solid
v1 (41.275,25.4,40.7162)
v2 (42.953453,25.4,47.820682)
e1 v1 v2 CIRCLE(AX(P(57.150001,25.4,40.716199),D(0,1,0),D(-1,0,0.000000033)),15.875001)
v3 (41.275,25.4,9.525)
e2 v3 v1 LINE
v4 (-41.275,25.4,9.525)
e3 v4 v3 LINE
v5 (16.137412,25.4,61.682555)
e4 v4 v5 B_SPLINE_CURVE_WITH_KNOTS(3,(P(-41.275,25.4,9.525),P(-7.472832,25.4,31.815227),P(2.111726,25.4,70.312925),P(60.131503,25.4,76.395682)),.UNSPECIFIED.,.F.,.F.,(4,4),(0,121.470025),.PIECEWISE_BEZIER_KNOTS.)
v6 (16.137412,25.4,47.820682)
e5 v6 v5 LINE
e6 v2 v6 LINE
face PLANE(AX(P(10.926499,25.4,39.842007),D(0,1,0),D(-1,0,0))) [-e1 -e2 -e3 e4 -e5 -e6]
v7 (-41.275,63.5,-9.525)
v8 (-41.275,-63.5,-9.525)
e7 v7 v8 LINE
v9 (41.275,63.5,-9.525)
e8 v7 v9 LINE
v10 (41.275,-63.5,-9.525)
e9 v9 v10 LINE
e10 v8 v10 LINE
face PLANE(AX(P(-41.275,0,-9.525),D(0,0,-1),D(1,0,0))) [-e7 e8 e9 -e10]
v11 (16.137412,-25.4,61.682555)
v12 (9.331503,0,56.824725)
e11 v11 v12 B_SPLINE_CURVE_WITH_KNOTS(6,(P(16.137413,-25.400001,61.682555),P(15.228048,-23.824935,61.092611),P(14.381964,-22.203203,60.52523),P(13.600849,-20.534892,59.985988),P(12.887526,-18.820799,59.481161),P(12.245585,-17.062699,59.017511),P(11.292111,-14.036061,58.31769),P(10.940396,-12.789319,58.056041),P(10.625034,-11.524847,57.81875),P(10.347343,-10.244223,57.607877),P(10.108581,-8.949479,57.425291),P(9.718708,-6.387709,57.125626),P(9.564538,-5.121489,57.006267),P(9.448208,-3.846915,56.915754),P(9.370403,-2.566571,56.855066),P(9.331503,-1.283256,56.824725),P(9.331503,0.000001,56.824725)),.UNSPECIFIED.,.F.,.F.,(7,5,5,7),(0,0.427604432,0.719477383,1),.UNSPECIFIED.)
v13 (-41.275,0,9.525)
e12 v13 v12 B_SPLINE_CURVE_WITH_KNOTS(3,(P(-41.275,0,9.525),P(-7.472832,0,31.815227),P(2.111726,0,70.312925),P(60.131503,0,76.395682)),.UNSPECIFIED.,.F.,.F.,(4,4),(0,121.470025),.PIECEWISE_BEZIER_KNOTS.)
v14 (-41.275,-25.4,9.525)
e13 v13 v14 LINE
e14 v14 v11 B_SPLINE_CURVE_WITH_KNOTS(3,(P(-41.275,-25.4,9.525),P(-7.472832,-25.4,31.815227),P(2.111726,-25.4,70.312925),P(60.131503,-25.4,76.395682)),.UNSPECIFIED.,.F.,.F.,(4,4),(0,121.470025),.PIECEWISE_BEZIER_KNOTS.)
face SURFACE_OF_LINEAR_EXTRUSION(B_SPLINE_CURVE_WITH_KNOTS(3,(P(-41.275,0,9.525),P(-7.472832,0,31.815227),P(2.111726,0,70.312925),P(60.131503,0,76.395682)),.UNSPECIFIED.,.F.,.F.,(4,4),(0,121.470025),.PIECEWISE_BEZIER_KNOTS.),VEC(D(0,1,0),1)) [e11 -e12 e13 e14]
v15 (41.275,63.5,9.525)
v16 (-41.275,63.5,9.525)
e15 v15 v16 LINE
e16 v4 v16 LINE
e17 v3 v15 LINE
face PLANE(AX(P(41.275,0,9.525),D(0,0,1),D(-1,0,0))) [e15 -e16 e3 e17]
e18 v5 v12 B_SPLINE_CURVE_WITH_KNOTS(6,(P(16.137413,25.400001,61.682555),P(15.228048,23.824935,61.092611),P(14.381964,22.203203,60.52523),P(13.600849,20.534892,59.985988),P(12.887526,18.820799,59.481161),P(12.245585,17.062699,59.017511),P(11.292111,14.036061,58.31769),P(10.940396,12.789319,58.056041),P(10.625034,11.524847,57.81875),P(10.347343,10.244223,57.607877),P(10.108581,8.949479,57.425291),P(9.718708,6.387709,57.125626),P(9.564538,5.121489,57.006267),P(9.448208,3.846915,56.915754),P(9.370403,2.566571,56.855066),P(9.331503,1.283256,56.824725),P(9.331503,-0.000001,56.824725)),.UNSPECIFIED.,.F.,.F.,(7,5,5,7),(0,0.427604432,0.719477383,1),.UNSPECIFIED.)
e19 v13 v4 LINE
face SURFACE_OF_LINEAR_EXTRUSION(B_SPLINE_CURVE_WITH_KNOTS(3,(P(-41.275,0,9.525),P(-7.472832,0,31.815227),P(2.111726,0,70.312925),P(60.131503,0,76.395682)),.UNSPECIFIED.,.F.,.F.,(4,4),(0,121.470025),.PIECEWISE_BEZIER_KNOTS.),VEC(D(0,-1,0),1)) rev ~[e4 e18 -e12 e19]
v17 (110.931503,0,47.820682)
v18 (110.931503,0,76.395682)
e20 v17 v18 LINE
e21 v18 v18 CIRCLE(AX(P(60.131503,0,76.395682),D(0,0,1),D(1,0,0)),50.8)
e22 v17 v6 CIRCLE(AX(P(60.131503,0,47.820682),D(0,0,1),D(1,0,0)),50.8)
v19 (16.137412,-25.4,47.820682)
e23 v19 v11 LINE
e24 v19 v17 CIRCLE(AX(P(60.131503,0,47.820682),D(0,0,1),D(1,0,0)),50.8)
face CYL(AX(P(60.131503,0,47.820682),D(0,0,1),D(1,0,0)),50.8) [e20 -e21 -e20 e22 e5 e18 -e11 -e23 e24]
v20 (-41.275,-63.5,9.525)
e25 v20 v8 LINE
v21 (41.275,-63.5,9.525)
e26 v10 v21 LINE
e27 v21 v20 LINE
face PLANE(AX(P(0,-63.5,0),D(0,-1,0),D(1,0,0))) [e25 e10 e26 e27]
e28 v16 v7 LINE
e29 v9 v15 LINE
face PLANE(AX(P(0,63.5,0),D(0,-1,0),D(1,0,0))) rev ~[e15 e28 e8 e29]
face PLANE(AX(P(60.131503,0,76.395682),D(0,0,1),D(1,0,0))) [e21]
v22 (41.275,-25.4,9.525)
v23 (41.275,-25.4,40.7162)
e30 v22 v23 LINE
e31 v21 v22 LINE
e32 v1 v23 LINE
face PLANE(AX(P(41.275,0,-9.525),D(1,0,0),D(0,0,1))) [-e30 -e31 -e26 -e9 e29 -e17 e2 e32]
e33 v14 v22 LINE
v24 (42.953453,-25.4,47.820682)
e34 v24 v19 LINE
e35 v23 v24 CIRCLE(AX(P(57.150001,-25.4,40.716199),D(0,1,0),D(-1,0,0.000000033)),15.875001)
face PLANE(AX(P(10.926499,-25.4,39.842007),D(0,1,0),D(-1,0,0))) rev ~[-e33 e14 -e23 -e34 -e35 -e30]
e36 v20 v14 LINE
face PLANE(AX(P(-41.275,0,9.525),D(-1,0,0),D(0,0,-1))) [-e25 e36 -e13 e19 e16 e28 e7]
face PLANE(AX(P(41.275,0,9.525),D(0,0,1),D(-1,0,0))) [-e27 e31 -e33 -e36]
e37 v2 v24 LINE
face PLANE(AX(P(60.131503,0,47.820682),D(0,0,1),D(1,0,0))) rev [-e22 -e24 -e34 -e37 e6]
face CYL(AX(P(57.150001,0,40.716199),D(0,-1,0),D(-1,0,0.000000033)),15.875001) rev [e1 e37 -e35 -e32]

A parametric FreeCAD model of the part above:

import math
import FreeCAD as App
import Part
import Sketcher

V = App.Vector
Q = App.Units.Quantity


def add_polygon(sketch, points):
    """Adds a closed chain of lines whose ends are joined by coincident constraints."""
    first, n = sketch.GeometryCount, len(points)
    for a, b in zip(points, points[1:] + points[:1]):
        sketch.addGeometry(Part.LineSegment(App.Vector(*a, 0), App.Vector(*b, 0)), False)
    for i in range(n):
        sketch.addConstraint(Sketcher.Constraint("Coincident", first + i, 2, first + (i + 1) % n, 1))

doc = App.newDocument("Part")
body = doc.addObject("PartDesign::Body", "Body")

sketch1 = body.newObject("Sketcher::SketchObject", "Sketch")
sketch1.AttachmentSupport = (doc.getObject("XZ_Plane"), [""])
sketch1.MapMode = "FlatFace"
add_polygon(sketch1, [(-41.275, 9.525), (-41.275, -9.525), (41.275, -9.525), (41.275, 9.525)])
sketch1.addConstraint(Sketcher.Constraint("Vertical", 0))
sketch1.addConstraint(Sketcher.Constraint("Horizontal", 1))
sketch1.addConstraint(Sketcher.Constraint("Vertical", 2))
sketch1.addConstraint(Sketcher.Constraint("Horizontal", 3))
sketch1.addConstraint(Sketcher.Constraint("Symmetric", 0, 2, 2, 2, -1, 1))
sketch1.addConstraint(Sketcher.Constraint("DistanceX", 1, 1, 1, 2, Q("3.25 in")))
sketch1.addConstraint(Sketcher.Constraint("DistanceY", 0, 2, 0, 1, Q("0.75 in")))
pad1 = body.newObject("PartDesign::Pad", "Pad")
pad1.Profile = sketch1
pad1.Length = Q("5 in")
pad1.Midplane = True

sketch2 = body.newObject("Sketcher::SketchObject", "Sketch001")
sketch2.AttachmentSupport = (doc.getObject("XZ_Plane"), [""])
sketch2.MapMode = "FlatFace"
sketch2.addGeometry(Part.BSplineCurve([V(-41.275, 9.525, 0), V(-7.472832, 31.815227, 0), V(2.111726, 70.312925, 0), V(60.131503, 76.395682, 0)], [4, 4], [0, 121.470025], False, 3, [1, 1, 1, 1], False), False)
sketch2.addGeometry(Part.LineSegment(V(-41.275, 9.525, 0), V(41.275, 9.525, 0)), False)
sketch2.addGeometry(Part.LineSegment(V(41.275, 9.525, 0), V(41.275, 40.7162, 0)), False)
sketch2.addGeometry(Part.ArcOfCircle(Part.Circle(V(57.150001, 40.716199, 0), V(0, 0, 1), 15.875001), math.radians(90.000002), math.radians(179.999998)), False)
sketch2.addGeometry(Part.LineSegment(V(57.15, 56.5912, 0), V(60.131503, 56.5912, 0)), False)
sketch2.addGeometry(Part.LineSegment(V(60.131503, 56.5912, 0), V(60.131503, 76.395682, 0)), False)
sketch2.addConstraint(Sketcher.Constraint("Block", 0))
sketch2.addConstraint(Sketcher.Constraint("Coincident", 0, 1, 1, 1))
sketch2.addConstraint(Sketcher.Constraint("Coincident", 1, 2, 2, 1))
sketch2.addConstraint(Sketcher.Constraint("Tangent", 2, 2, 3, 2))
sketch2.addConstraint(Sketcher.Constraint("Tangent", 3, 1, 4, 1))
sketch2.addConstraint(Sketcher.Constraint("Coincident", 4, 2, 5, 1))
sketch2.addConstraint(Sketcher.Constraint("Coincident", 5, 2, 0, 2))
sketch2.addConstraint(Sketcher.Constraint("Horizontal", 1))
sketch2.addConstraint(Sketcher.Constraint("Vertical", 2))
sketch2.addConstraint(Sketcher.Constraint("Horizontal", 4))
sketch2.addConstraint(Sketcher.Constraint("Vertical", 5))
sketch2.addConstraint(Sketcher.Constraint("Radius", 3, Q("0.625 in")))
sketch2.addConstraint(Sketcher.Constraint("DistanceX", 1, 1, 1, 2, Q("3.25 in")))
sketch2.addConstraint(Sketcher.Constraint("DistanceY", 2, 1, 2, 2, Q("1.228 in")))
pad2 = body.newObject("PartDesign::Pad", "Pad001")
pad2.Profile = sketch2
pad2.Length = Q("2 in")
pad2.Midplane = True

sketch3 = body.newObject("Sketcher::SketchObject", "Sketch002")
sketch3.AttachmentSupport = (doc.getObject("XZ_Plane"), [""])
sketch3.MapMode = "FlatFace"
add_polygon(sketch3, [(110.931503, 76.395682), (60.131503, 76.395682), (60.131503, 47.820682), (110.931503, 47.820682)])
sketch3.addGeometry(Part.LineSegment(V(60.131503, 47.820682, 0), V(60.131503, 76.395682, 0)), True)
sketch3.addConstraint(Sketcher.Constraint("Horizontal", 0))
sketch3.addConstraint(Sketcher.Constraint("Vertical", 1))
sketch3.addConstraint(Sketcher.Constraint("Horizontal", 2))
sketch3.addConstraint(Sketcher.Constraint("Vertical", 3))
sketch3.addConstraint(Sketcher.Constraint("Vertical", 4))
sketch3.addConstraint(Sketcher.Constraint("Coincident", 4, 1, 1, 2))
sketch3.addConstraint(Sketcher.Constraint("Horizontal", 3, 2, 4, 2))
sketch3.addConstraint(Sketcher.Constraint("DistanceX", 0, 2, 0, 1, Q("2 in")))
sketch3.addConstraint(Sketcher.Constraint("DistanceY", 1, 2, 1, 1, Q("1.125 in")))
sketch3.addConstraint(Sketcher.Constraint("DistanceY", -1, 1, 0, 2, 76.395682))
sketch3.addConstraint(Sketcher.Constraint("DistanceX", -1, 1, 0, 2, 60.131503))
revolution = body.newObject("PartDesign::Revolution", "Revolution")
revolution.Profile = sketch3
revolution.ReferenceAxis = (sketch3, ["Axis0"])
revolution.Angle = 360

doc.recompute()
